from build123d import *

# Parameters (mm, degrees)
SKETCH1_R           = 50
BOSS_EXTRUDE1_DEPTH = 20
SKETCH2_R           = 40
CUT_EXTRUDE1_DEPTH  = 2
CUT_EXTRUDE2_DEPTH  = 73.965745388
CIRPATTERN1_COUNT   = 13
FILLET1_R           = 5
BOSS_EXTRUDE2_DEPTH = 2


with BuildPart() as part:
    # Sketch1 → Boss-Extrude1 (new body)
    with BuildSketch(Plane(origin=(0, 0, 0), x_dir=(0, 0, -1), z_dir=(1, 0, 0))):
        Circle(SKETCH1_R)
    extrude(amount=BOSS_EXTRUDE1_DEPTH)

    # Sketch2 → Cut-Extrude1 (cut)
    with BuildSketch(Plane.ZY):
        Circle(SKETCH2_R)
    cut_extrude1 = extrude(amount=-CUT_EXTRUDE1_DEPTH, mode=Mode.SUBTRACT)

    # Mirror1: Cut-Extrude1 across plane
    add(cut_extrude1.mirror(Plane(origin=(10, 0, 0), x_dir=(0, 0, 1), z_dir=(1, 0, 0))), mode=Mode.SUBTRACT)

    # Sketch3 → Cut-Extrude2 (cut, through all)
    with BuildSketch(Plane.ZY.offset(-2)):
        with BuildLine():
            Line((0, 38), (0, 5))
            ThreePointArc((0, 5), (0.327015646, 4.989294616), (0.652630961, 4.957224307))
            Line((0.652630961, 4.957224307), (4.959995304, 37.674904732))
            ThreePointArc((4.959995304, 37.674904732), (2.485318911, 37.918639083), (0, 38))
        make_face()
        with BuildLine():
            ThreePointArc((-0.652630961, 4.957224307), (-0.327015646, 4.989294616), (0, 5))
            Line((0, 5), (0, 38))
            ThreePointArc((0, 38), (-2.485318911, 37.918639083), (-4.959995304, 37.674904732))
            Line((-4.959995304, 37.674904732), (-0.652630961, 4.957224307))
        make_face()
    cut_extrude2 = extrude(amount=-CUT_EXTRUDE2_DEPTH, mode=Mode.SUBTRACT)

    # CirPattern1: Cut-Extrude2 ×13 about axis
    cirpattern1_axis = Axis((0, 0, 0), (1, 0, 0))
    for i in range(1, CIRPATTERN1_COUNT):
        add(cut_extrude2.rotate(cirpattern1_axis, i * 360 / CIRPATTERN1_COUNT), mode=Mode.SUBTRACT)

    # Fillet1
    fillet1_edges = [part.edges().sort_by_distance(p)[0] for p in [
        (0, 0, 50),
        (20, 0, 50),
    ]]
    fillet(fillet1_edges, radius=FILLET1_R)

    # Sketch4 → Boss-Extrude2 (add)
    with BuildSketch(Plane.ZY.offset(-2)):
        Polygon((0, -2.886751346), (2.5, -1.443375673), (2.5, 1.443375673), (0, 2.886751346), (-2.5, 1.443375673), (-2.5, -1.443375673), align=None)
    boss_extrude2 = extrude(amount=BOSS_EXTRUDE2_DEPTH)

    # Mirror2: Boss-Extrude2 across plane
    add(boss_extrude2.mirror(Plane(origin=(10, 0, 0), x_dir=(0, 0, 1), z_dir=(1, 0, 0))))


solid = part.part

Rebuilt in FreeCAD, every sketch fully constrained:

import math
import FreeCAD as App
import Part
import Sketcher

V = App.Vector
Q = App.Units.Quantity


def edges_at(feature, points):
    """Names of the edges that pass closest to the given points."""
    edges = feature.Shape.Edges
    near = lambda p: min(range(len(edges)), key=lambda i: edges[i].distToShape(Part.Vertex(*p))[0])
    return sorted({f"Edge{near(p) + 1}" for p in points})

doc = App.newDocument("Part")
body = doc.addObject("PartDesign::Body", "Body")

# Sketch on YZ plane
sketch1 = body.newObject("Sketcher::SketchObject", "Sketch")
sketch1.AttachmentSupport = (doc.getObject("YZ_Plane"), [""])
sketch1.MapMode = "FlatFace"
sketch1.addGeometry(Part.Circle(V(0, 0, 0), V(0, 0, 1), 50), False)
sketch1.addConstraint([
    Sketcher.Constraint("Coincident", 0, 3, -1, 1),
    Sketcher.Constraint("Diameter", 0, Q("100 mm")),
])
pad1 = body.newObject("PartDesign::Pad", "Pad")
pad1.Profile = sketch1
pad1.Length = 20

# Sketch on YZ plane
sketch2 = body.newObject("Sketcher::SketchObject", "Sketch001")
sketch2.AttachmentSupport = (doc.getObject("YZ_Plane"), [""])
sketch2.MapMode = "FlatFace"
sketch2.addGeometry(Part.Circle(V(0, 0, 0), V(0, 0, 1), 40), False)
sketch2.addConstraint([
    Sketcher.Constraint("Coincident", 0, 3, -1, 1),
    Sketcher.Constraint("Diameter", 0, Q("80 mm")),
])
pocket1 = body.newObject("PartDesign::Pocket", "Pocket")
pocket1.Profile = sketch2
pocket1.Length = 2
pocket1.Reversed = True
doc.recompute()

datumplane = body.newObject("PartDesign::Plane", "DatumPlane")
datumplane.AttachmentSupport = (doc.getObject("YZ_Plane"), [""])
datumplane.MapMode = "FlatFace"
datumplane.AttachmentOffset = App.Placement(V(0, 0, 10), App.Rotation())
mirrored = body.newObject("PartDesign::Mirrored", "Mirrored")
mirrored.Originals = [pocket1]
mirrored.MirrorPlane = (datumplane, [""])
body.Tip = mirrored

# Sketch on YZ plane
sketch3 = body.newObject("Sketcher::SketchObject", "Sketch002")
sketch3.AttachmentSupport = (doc.getObject("YZ_Plane"), [""])
sketch3.MapMode = "FlatFace"
sketch3.AttachmentOffset = App.Placement(V(0, 0, 2), App.Rotation())
sketch3.addGeometry([
    Part.ArcOfCircle(Part.Circle(V(0, 0, 0), V(0, 0, 1), 5), math.radians(0), math.radians(7.5)),  # 0
    Part.LineSegment(V(4.957224, 0.652631, 0), V(37.674905, 4.959995, 0)),  # 1
    Part.ArcOfCircle(Part.Circle(V(0, 0, 0), V(0, 0, 1), 38), math.radians(0), math.radians(7.5)),  # 2
    Part.ArcOfCircle(Part.Circle(V(0, 0, 0), V(0, 0, 1), 38), math.radians(-7.5), math.radians(0)),  # 3
    Part.LineSegment(V(37.674905, -4.959995, 0), V(4.957224, -0.652631, 0)),  # 4
    Part.ArcOfCircle(Part.Circle(V(0, 0, 0), V(0, 0, 1), 5), math.radians(-7.5), math.radians(0)),  # 5
], False)
sketch3.addConstraint([
    Sketcher.Constraint("Coincident", 0, 2, 1, 1),
    Sketcher.Constraint("Coincident", 1, 2, 2, 2),
    Sketcher.Constraint("Tangent", 2, 1, 3, 2),
    Sketcher.Constraint("Coincident", 3, 1, 4, 1),
    Sketcher.Constraint("Coincident", 4, 2, 5, 1),
    Sketcher.Constraint("Tangent", 5, 2, 0, 1),
    Sketcher.Constraint("Coincident", 0, 3, -1, 1),
    Sketcher.Constraint("Coincident", 2, 3, -1, 1),
    Sketcher.Constraint("Equal", 2, 3),
    Sketcher.Constraint("Equal", 0, 5),
    Sketcher.Constraint("PointOnObject", 2, 1, -1),
    Sketcher.Constraint("PointOnObject", 5, 2, -1),
    Sketcher.Constraint("Vertical", 1, 2, 3, 1),
    Sketcher.Constraint("Vertical", 0, 2, 4, 2),
    Sketcher.Constraint("Radius", 0, Q("5 mm")),
    Sketcher.Constraint("Radius", 2, Q("38 mm")),
    Sketcher.Constraint("Angle", 1, Q("7.5 deg")),
    Sketcher.Constraint("DistanceY", -1, 1, 0, 2, Q("0.652631 mm")),
])
pocket2 = body.newObject("PartDesign::Pocket", "Pocket001")
pocket2.Profile = sketch3
pocket2.Type = "ThroughAll"
pocket2.Reversed = True
doc.recompute()

polarpattern = body.newObject("PartDesign::PolarPattern", "PolarPattern")
polarpattern.Originals = [pocket2]
polarpattern.Axis = (doc.getObject("X_Axis"), [""])
polarpattern.Angle = 360
polarpattern.Occurrences = 13
body.Tip = polarpattern
doc.recompute()

fillet = body.newObject("PartDesign::Fillet", "Fillet")
fillet.Base = (polarpattern, edges_at(polarpattern, [(0, 0, 50), (20, 0, 50)]))
fillet.Radius = 5

# Sketch on YZ plane
sketch4 = body.newObject("Sketcher::SketchObject", "Sketch003")
sketch4.AttachmentSupport = (doc.getObject("YZ_Plane"), [""])
sketch4.MapMode = "FlatFace"
sketch4.AttachmentOffset = App.Placement(V(0, 0, 2), App.Rotation())
sketch4.addGeometry([
    Part.LineSegment(V(-2.886751, 0, 0), V(-1.443376, 2.5, 0)),  # 0
    Part.LineSegment(V(-1.443376, 2.5, 0), V(1.443376, 2.5, 0)),  # 1
    Part.LineSegment(V(1.443376, 2.5, 0), V(2.886751, 0, 0)),  # 2
    Part.LineSegment(V(2.886751, 0, 0), V(1.443376, -2.5, 0)),  # 3
    Part.LineSegment(V(1.443376, -2.5, 0), V(-1.443376, -2.5, 0)),  # 4
    Part.LineSegment(V(-1.443376, -2.5, 0), V(-2.886751, 0, 0)),  # 5
], False)
sketch4.addConstraint([
    Sketcher.Constraint("Coincident", 0, 2, 1, 1),
    Sketcher.Constraint("Coincident", 1, 2, 2, 1),
    Sketcher.Constraint("Coincident", 2, 2, 3, 1),
    Sketcher.Constraint("Coincident", 3, 2, 4, 1),
    Sketcher.Constraint("Coincident", 4, 2, 5, 1),
    Sketcher.Constraint("Coincident", 5, 2, 0, 1),
    Sketcher.Constraint("Horizontal", 1),
    Sketcher.Constraint("Horizontal", 4),
    Sketcher.Constraint("Symmetric", 0, 2, 3, 2, -1, 1),
    Sketcher.Constraint("Symmetric", 2, 2, 5, 2, -1, 1),
    Sketcher.Constraint("PointOnObject", 2, 2, -1),
    Sketcher.Constraint("Parallel", 2, 5),
    Sketcher.Constraint("Vertical", 1, 2, 3, 2),
    Sketcher.Constraint("Angle", 0, Q("60 deg")),
    Sketcher.Constraint("DistanceY", 3, 2, 1, 2, Q("5 mm")),
    Sketcher.Constraint("DistanceX", 1, 1, 1, 2, Q("2.886751 mm")),
])
pad2 = body.newObject("PartDesign::Pad", "Pad001")
pad2.Profile = sketch4
pad2.Length = 2
pad2.Reversed = True
doc.recompute()

datumplane2 = body.newObject("PartDesign::Plane", "DatumPlane001")
datumplane2.AttachmentSupport = (doc.getObject("YZ_Plane"), [""])
datumplane2.MapMode = "FlatFace"
datumplane2.AttachmentOffset = App.Placement(V(0, 0, 10), App.Rotation())
mirrored2 = body.newObject("PartDesign::Mirrored", "Mirrored001")
mirrored2.Originals = [pad2]
mirrored2.MirrorPlane = (datumplane2, [""])
body.Tip = mirrored2

doc.recompute()
